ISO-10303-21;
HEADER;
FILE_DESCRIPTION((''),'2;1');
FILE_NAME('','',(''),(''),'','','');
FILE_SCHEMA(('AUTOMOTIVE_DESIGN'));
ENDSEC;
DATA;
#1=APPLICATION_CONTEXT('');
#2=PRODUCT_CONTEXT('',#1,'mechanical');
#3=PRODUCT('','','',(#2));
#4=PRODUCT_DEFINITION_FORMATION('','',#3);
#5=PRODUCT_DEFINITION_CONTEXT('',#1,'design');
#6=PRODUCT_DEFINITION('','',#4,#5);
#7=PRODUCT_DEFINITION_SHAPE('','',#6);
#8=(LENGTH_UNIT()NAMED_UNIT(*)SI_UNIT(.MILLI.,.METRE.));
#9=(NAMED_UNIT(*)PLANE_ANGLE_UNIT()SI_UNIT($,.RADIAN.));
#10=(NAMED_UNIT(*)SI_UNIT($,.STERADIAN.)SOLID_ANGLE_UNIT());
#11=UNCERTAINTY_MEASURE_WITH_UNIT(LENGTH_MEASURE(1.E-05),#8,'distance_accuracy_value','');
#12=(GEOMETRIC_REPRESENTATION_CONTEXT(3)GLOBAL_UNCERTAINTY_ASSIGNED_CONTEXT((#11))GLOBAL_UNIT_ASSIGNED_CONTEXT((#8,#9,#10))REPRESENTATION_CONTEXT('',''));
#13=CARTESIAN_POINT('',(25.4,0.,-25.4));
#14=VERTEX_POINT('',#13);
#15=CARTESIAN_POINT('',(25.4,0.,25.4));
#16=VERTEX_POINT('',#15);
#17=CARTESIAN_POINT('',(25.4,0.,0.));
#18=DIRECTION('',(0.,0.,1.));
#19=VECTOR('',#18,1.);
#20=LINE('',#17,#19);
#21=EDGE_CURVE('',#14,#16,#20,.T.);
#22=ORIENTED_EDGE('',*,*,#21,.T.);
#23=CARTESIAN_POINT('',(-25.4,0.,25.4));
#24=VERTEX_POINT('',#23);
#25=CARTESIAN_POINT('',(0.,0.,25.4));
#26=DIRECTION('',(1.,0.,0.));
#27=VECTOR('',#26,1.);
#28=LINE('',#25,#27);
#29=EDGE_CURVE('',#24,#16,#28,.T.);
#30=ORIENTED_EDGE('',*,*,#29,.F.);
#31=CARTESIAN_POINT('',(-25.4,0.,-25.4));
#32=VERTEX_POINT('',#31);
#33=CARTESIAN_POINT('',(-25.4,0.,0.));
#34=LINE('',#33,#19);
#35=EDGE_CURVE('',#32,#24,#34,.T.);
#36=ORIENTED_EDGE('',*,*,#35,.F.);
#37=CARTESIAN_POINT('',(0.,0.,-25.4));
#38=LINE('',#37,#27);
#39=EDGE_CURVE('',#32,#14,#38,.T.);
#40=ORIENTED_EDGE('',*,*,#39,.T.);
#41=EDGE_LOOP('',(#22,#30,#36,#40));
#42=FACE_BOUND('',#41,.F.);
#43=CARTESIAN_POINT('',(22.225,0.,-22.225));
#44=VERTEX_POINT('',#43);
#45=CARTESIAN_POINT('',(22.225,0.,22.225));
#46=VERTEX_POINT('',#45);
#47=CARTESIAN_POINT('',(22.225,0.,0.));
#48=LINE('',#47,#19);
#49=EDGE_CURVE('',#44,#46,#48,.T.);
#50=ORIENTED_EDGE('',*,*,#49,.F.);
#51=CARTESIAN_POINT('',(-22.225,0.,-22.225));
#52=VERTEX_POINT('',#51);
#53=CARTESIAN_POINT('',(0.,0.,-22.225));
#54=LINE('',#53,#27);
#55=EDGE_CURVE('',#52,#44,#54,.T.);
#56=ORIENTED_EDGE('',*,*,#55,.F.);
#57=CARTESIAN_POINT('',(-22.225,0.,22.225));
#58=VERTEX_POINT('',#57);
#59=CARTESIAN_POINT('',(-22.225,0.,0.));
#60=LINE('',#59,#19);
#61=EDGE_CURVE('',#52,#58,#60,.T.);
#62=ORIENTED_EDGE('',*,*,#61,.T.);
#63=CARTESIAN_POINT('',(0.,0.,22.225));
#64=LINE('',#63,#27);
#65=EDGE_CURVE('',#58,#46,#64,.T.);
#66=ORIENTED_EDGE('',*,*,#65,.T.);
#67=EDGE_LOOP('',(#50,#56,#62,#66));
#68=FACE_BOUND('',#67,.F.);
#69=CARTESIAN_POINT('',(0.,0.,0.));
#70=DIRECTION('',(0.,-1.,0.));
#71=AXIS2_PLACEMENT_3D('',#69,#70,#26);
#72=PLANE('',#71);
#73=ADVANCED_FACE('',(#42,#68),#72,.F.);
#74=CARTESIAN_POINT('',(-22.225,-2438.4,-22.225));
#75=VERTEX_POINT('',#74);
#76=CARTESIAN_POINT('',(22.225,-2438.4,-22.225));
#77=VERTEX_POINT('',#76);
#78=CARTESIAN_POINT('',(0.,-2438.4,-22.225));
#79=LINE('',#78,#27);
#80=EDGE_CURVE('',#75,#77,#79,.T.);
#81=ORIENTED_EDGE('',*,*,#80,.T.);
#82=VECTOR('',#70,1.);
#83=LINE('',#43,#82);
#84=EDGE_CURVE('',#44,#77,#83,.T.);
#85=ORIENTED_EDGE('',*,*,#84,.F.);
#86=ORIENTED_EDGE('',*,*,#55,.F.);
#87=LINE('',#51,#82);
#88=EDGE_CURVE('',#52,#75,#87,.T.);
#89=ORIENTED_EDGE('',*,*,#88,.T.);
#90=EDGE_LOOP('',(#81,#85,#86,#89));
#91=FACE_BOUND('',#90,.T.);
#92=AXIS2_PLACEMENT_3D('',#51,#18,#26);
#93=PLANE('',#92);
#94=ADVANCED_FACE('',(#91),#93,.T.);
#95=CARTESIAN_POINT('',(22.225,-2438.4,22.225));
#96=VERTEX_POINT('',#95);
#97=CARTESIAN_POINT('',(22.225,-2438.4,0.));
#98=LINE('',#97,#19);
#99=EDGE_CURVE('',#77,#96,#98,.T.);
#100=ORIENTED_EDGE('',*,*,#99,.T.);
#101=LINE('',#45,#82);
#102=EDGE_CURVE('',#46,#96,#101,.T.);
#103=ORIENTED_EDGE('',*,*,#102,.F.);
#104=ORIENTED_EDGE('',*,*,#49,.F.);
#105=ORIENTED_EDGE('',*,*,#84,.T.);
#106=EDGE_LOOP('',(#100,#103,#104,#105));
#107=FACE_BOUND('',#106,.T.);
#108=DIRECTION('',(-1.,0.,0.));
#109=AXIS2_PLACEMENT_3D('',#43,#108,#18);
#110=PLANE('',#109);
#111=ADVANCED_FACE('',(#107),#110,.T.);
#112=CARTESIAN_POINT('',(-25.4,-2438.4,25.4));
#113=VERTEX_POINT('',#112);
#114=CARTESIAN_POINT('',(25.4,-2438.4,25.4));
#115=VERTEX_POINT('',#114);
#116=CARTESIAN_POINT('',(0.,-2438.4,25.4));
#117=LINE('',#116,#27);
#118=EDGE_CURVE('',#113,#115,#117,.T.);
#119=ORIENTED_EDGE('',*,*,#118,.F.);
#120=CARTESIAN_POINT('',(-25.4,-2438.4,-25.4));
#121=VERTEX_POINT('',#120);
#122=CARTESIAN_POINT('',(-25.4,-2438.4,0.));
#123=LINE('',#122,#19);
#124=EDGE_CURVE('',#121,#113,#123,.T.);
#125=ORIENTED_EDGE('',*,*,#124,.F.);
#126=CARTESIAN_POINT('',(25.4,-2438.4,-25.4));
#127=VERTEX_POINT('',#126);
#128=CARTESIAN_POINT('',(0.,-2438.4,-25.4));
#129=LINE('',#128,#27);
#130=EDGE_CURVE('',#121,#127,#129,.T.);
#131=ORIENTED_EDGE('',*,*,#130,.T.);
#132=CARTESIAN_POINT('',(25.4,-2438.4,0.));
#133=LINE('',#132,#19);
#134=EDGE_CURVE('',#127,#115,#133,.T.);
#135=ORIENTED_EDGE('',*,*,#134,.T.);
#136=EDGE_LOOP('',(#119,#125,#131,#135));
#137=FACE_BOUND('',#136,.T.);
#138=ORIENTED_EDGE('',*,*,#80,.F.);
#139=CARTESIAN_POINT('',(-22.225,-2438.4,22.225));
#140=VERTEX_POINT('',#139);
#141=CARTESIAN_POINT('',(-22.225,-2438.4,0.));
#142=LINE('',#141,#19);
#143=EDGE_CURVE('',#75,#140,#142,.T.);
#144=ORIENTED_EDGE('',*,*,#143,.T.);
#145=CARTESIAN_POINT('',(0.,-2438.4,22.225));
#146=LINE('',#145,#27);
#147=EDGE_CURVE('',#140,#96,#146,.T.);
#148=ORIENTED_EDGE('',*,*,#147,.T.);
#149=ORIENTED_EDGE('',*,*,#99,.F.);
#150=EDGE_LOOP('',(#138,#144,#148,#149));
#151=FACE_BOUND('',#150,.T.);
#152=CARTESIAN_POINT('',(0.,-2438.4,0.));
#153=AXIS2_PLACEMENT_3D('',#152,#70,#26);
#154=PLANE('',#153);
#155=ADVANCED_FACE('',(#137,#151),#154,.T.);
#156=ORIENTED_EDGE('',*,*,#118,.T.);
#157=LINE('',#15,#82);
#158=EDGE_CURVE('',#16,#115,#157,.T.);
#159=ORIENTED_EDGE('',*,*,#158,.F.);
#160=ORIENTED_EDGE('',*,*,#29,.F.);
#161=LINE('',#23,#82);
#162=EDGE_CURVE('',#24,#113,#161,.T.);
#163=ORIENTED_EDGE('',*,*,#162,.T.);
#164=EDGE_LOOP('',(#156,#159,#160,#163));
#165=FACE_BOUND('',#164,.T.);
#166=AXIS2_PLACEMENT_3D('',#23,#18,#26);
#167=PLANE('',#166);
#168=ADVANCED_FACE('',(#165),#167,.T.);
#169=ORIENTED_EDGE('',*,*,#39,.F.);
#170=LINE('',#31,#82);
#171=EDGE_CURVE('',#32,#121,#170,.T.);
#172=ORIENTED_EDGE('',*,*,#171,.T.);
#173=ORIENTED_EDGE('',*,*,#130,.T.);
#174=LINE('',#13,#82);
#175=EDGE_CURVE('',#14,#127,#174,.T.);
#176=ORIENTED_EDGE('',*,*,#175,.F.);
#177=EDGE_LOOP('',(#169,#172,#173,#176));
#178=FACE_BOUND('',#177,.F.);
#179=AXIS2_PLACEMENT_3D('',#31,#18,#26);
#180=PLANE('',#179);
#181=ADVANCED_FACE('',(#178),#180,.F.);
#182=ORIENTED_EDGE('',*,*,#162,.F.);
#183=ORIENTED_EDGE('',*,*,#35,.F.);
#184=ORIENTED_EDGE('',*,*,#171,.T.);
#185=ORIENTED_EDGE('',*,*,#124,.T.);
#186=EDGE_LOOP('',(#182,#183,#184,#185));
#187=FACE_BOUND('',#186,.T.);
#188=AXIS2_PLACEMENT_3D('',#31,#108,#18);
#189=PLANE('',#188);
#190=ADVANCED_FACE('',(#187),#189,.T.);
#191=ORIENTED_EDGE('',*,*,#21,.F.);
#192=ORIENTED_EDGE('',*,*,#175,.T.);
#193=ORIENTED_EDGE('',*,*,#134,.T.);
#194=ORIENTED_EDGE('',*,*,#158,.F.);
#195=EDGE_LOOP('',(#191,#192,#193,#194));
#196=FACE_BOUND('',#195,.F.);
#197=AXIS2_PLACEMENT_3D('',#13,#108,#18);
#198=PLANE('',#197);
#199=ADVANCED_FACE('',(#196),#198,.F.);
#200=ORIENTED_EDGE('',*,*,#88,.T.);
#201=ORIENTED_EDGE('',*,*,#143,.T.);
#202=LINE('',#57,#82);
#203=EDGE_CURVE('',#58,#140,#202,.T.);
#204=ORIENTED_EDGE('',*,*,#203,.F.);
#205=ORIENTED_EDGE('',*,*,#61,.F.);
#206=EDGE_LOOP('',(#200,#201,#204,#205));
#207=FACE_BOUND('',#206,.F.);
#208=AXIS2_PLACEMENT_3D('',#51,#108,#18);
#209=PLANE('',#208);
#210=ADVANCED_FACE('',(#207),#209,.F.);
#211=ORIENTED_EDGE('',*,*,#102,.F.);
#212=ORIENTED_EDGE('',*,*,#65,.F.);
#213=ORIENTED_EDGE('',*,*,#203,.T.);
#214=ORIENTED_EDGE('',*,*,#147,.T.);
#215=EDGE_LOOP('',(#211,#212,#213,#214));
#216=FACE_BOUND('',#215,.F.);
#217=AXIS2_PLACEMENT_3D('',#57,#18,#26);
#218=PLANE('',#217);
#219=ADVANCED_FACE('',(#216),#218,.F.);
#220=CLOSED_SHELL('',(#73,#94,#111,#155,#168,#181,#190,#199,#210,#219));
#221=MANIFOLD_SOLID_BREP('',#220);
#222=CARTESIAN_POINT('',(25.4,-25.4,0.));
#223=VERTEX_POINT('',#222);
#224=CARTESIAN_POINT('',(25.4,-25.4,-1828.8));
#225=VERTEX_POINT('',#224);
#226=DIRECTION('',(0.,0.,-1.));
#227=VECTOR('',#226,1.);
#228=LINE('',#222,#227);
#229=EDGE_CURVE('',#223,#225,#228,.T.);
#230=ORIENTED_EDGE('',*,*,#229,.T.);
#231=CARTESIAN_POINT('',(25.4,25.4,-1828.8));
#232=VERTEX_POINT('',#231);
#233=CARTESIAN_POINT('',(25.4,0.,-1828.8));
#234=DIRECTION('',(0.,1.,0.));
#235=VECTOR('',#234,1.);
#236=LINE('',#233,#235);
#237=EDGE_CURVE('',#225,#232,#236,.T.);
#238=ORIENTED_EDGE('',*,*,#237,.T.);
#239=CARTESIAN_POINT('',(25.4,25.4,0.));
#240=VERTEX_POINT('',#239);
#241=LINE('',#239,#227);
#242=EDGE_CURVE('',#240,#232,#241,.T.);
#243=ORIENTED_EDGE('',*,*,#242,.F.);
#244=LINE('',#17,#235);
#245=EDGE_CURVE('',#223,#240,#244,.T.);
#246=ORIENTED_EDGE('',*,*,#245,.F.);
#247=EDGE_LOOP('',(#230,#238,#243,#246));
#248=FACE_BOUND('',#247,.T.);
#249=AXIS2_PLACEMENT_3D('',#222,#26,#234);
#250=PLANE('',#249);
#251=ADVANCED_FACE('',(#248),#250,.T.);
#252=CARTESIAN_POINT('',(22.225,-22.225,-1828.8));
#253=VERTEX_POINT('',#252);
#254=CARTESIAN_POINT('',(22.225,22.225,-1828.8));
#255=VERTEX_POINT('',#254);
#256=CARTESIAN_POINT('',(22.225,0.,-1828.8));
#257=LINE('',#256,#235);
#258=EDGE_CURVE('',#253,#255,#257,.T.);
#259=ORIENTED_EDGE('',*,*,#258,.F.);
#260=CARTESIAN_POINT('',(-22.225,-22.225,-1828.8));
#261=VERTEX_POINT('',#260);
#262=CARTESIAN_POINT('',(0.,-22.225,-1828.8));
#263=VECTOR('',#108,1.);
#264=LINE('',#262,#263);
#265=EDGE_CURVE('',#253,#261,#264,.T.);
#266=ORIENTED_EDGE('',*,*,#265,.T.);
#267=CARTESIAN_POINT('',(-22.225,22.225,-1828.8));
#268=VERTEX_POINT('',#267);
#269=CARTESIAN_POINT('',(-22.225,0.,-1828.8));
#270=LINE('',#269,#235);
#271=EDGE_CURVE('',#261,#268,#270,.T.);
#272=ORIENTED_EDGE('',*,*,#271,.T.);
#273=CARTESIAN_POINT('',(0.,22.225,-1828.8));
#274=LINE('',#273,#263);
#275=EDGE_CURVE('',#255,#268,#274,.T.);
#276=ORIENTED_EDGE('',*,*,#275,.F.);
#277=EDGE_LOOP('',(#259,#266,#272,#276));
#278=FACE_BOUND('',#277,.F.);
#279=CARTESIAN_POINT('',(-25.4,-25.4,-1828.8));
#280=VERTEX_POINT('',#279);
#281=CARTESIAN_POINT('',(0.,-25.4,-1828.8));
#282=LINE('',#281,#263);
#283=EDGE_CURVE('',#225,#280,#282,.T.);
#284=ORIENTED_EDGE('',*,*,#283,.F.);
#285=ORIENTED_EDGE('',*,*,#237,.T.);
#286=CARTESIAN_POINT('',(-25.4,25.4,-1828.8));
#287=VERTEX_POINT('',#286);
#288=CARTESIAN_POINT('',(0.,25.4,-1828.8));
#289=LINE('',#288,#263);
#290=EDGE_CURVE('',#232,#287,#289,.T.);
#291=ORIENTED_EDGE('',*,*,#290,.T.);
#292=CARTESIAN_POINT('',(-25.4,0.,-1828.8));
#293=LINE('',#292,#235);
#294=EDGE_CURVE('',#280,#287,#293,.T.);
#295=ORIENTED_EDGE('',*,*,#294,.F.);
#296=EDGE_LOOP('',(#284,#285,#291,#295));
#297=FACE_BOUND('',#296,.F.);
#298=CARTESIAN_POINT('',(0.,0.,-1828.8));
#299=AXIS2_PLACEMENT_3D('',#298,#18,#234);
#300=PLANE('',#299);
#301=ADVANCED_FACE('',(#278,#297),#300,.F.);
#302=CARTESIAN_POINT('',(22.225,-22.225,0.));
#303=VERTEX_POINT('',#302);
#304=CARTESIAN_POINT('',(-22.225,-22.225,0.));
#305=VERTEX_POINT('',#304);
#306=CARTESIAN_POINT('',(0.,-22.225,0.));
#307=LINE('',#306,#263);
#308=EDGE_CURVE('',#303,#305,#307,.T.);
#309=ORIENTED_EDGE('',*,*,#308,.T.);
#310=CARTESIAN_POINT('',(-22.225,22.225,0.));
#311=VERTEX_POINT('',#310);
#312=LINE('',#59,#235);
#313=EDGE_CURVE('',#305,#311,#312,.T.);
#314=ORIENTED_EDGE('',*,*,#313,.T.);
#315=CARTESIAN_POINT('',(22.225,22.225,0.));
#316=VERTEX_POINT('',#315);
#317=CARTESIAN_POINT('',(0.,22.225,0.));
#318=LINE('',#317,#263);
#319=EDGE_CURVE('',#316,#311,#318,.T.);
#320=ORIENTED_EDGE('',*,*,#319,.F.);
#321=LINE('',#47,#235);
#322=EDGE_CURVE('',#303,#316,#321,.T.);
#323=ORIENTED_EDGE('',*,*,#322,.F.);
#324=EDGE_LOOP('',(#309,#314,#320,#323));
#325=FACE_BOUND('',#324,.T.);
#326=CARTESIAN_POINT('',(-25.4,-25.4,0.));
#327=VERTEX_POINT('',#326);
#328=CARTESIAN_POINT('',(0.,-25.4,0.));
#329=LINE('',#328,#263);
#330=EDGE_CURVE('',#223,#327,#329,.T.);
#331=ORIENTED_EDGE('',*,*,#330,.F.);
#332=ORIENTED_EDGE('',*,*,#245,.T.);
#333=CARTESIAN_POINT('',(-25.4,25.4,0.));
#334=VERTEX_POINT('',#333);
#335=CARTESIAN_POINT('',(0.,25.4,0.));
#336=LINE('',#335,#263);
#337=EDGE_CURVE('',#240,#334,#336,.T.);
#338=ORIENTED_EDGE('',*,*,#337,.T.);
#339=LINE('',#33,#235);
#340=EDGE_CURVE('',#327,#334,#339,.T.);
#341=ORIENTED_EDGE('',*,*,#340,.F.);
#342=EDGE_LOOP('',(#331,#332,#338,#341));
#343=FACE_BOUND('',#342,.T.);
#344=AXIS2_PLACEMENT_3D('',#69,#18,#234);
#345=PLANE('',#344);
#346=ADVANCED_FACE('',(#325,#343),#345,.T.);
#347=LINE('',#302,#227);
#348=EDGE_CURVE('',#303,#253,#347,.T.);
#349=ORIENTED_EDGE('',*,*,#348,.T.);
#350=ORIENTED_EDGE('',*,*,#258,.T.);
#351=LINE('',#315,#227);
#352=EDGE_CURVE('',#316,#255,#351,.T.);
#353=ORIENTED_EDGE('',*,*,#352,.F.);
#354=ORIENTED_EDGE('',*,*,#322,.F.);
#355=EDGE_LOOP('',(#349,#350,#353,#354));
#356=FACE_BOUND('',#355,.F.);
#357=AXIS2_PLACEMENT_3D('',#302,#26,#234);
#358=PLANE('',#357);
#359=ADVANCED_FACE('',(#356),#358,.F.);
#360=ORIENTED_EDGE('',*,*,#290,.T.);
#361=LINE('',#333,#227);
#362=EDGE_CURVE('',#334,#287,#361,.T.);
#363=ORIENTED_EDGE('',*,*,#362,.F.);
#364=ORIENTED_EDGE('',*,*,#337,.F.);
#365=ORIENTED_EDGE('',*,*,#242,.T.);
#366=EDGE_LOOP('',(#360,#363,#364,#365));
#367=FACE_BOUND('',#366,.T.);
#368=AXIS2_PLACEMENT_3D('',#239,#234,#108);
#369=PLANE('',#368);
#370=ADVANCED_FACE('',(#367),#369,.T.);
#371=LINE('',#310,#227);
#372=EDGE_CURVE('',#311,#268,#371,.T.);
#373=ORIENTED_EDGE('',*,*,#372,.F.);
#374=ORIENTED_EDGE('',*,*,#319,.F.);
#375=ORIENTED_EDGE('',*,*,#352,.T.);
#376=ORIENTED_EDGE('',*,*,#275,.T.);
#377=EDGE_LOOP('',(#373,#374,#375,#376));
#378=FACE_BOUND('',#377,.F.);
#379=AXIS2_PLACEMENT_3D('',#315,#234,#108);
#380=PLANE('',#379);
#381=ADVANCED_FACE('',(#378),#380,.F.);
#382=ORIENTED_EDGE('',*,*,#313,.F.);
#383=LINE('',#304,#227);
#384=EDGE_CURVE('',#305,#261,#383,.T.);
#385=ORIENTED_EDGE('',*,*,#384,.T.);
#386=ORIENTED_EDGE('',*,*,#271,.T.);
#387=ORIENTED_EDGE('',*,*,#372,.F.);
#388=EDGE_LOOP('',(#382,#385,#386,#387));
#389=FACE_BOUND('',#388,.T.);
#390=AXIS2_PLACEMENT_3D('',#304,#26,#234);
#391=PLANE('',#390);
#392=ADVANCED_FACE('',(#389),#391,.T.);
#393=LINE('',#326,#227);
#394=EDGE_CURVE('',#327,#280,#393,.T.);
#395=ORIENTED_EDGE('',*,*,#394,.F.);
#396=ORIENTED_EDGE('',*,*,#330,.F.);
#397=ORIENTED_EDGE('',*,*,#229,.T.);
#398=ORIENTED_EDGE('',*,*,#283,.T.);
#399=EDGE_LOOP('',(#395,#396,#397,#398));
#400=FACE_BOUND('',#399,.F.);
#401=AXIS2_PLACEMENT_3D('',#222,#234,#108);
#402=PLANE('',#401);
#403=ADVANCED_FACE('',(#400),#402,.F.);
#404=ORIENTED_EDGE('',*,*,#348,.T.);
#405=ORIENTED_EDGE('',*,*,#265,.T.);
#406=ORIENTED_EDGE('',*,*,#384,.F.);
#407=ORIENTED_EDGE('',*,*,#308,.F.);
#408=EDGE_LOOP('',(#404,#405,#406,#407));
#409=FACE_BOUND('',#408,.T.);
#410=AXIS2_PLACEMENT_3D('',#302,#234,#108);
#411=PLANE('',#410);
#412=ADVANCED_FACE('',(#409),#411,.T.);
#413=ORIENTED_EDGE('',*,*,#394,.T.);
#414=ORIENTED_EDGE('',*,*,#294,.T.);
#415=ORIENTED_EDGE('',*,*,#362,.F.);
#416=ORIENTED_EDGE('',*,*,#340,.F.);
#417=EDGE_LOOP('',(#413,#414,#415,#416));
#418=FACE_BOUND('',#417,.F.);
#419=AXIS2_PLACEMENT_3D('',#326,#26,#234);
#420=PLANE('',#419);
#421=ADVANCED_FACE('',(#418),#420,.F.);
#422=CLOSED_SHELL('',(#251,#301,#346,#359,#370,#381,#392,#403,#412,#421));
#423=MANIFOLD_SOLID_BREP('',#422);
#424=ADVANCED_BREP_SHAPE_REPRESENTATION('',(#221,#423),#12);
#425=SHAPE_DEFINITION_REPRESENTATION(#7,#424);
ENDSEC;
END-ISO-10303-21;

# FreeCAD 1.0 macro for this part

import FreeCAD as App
import Part
import Sketcher
Q = App.Units.Quantity


def add_polygon(sketch, points):
    """Adds a closed chain of lines whose ends are joined by coincident constraints."""
    first, n = sketch.GeometryCount, len(points)
    for a, b in zip(points, points[1:] + points[:1]):
        sketch.addGeometry(Part.LineSegment(App.Vector(*a, 0), App.Vector(*b, 0)), False)
    for i in range(n):
        sketch.addConstraint(Sketcher.Constraint("Coincident", first + i, 2, first + (i + 1) % n, 1))

doc = App.newDocument("Part")
body = doc.addObject("PartDesign::Body", "Body")

# Sketch on XZ plane
sketch1 = doc.addObject("Sketcher::SketchObject", "Sketch")
body.addObject(sketch1)
sketch1.AttachmentSupport = (doc.XZ_Plane, [""])
sketch1.MapMode = "FlatFace"
add_polygon(sketch1, [(-25.4, 25.4), (-25.4, -25.4), (25.4, -25.4), (25.4, 25.4)])  # lines 0-3
add_polygon(sketch1, [(22.225, -22.225), (-22.225, -22.225), (-22.225, 22.225), (22.225, 22.225)])  # lines 4-7
sketch1.addConstraint([
    Sketcher.Constraint("Vertical", 0),
    Sketcher.Constraint("Horizontal", 1),
    Sketcher.Constraint("Vertical", 2),
    Sketcher.Constraint("Horizontal", 3),
    Sketcher.Constraint("Horizontal", 4),
    Sketcher.Constraint("Vertical", 5),
    Sketcher.Constraint("Horizontal", 6),
    Sketcher.Constraint("Vertical", 7),
    Sketcher.Constraint("Symmetric", 0, 2, 2, 2, -1, 1),
    Sketcher.Constraint("Symmetric", 4, 2, 6, 2, -1, 1),
    Sketcher.Constraint("Equal", 3, 0),
    Sketcher.Constraint("Equal", 6, 5),
    Sketcher.Constraint("DistanceX", 1, 1, 1, 2, Q("2 in")),
    Sketcher.Constraint("DistanceX", 4, 2, 4, 1, Q("1.75 in")),
])
pad1 = doc.addObject("PartDesign::Pad", "Pad")
body.addObject(pad1)
pad1.Profile = sketch1
pad1.Length = Q("96 in")
body2 = doc.addObject("PartDesign::Body", "Body001")

# Sketch on XY plane
sketch2 = doc.addObject("Sketcher::SketchObject", "Sketch001")
body2.addObject(sketch2)
sketch2.AttachmentSupport = (doc.getObject("XY_Plane001"), [""])
sketch2.MapMode = "FlatFace"
add_polygon(sketch2, [(-25.4, -25.4), (25.4, -25.4), (25.4, 25.4), (-25.4, 25.4)])  # lines 0-3
add_polygon(sketch2, [(22.225, 22.225), (22.225, -22.225), (-22.225, -22.225), (-22.225, 22.225)])  # lines 4-7
sketch2.addConstraint([
    Sketcher.Constraint("Horizontal", 0),
    Sketcher.Constraint("Vertical", 1),
    Sketcher.Constraint("Horizontal", 2),
    Sketcher.Constraint("Vertical", 3),
    Sketcher.Constraint("Vertical", 4),
    Sketcher.Constraint("Horizontal", 5),
    Sketcher.Constraint("Vertical", 6),
    Sketcher.Constraint("Horizontal", 7),
    Sketcher.Constraint("Symmetric", 0, 2, 2, 2, -1, 1),
    Sketcher.Constraint("Symmetric", 4, 2, 6, 2, -1, 1),
    Sketcher.Constraint("Equal", 2, 1),
    Sketcher.Constraint("Equal", 7, 4),
    Sketcher.Constraint("DistanceX", 0, 1, 0, 2, Q("2 in")),
    Sketcher.Constraint("DistanceX", 5, 2, 5, 1, Q("1.75 in")),
])
pad2 = doc.addObject("PartDesign::Pad", "Pad001")
body2.addObject(pad2)
pad2.Profile = sketch2
pad2.Length = Q("72 in")
pad2.Reversed = True

doc.recompute()
